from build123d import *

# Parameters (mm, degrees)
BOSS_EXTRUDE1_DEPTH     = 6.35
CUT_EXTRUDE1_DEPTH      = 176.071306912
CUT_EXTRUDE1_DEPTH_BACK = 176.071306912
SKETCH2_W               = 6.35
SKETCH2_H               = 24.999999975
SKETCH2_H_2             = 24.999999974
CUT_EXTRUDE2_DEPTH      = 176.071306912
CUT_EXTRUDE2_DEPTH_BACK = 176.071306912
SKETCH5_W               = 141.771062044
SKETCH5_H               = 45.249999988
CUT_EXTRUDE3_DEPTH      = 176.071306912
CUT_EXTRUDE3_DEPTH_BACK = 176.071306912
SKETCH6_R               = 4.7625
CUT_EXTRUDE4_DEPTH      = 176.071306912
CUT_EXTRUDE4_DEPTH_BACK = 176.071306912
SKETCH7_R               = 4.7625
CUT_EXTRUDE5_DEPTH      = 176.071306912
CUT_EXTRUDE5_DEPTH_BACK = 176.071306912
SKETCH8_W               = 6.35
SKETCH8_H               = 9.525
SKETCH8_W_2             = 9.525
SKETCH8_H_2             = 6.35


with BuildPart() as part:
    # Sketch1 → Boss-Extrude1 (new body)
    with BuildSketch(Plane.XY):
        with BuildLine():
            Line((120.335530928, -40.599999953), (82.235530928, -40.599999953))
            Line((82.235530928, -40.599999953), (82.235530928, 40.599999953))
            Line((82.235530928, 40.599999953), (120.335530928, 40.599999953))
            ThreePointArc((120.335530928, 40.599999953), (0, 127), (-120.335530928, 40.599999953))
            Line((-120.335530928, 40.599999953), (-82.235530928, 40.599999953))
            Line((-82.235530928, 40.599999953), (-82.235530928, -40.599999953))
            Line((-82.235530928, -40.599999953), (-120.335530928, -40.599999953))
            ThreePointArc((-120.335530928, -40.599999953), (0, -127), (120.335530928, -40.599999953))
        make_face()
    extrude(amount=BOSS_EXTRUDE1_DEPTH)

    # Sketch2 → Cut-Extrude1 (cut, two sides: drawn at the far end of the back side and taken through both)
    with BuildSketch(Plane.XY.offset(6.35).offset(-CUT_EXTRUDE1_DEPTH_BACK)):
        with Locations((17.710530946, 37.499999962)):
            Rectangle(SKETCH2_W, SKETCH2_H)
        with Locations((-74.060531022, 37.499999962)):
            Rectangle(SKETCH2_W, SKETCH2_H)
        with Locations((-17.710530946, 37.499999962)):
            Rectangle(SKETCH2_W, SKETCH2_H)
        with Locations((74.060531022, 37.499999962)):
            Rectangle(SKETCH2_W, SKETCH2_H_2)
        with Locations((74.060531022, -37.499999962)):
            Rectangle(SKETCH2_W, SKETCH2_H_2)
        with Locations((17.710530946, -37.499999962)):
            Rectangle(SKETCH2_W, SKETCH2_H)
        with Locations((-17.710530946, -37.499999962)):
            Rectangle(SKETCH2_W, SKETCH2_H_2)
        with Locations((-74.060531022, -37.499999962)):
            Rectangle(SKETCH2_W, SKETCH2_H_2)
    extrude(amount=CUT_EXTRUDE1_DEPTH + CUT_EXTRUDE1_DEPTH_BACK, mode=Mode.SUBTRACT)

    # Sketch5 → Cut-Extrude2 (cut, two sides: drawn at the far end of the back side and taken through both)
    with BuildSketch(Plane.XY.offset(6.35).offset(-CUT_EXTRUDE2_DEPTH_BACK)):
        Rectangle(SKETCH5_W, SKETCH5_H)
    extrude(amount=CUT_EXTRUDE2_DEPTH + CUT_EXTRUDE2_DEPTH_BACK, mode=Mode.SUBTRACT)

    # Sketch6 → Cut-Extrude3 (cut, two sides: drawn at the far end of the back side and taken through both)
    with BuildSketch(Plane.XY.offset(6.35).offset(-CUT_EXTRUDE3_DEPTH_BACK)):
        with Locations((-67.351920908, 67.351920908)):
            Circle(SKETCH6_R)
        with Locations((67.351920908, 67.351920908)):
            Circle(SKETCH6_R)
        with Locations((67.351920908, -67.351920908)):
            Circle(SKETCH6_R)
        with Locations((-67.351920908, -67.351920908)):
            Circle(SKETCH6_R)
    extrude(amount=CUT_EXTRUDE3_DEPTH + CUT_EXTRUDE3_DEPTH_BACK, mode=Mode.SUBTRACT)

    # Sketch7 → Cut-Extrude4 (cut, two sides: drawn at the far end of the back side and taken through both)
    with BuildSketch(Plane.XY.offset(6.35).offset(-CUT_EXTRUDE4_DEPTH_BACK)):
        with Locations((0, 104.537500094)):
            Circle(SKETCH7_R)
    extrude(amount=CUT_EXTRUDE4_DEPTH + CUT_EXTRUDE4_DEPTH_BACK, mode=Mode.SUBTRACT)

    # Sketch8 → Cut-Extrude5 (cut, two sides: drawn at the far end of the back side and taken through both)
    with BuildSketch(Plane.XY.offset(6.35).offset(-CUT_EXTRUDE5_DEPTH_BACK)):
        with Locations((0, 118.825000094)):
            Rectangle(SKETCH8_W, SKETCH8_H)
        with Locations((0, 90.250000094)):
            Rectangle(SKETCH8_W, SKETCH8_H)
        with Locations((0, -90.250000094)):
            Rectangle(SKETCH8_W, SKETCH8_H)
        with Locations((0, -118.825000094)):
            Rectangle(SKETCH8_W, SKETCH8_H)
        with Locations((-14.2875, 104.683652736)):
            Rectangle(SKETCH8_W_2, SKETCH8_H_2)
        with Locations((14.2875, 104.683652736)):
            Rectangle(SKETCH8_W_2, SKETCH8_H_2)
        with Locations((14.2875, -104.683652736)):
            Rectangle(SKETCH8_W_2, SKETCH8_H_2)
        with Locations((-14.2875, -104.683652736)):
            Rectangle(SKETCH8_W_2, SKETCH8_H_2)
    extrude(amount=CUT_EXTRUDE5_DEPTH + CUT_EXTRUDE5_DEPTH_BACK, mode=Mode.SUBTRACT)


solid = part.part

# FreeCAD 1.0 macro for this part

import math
import FreeCAD as App
import Part
import Sketcher
from FreeCAD import Vector
Q = App.Units.Quantity

doc = App.newDocument("Part")
body = doc.addObject("PartDesign::Body", "Body")

sketch1 = body.newObject("Sketcher::SketchObject", "Sketch")
sketch1.AttachmentSupport = (doc.getObject("XY_Plane"), [""])
sketch1.MapMode = "FlatFace"
sketch1.addGeometry([
    Part.LineSegment(Vector(120, -41, 0), Vector(82, -41, 0)),
    Part.LineSegment(Vector(82, -41, 0), Vector(82, 41, 0)),
    Part.LineSegment(Vector(82, 41, 0), Vector(120, 41, 0)),
    Part.ArcOfCircle(Part.Circle(Vector(0, 0, 0), Vector(0, 0, 1), 127), math.radians(19), math.radians(161)),
    Part.LineSegment(Vector(-120, 41, 0), Vector(-82, 41, 0)),
    Part.LineSegment(Vector(-82, 41, 0), Vector(-82, -41, 0)),
    Part.LineSegment(Vector(-82, -41, 0), Vector(-120, -41, 0)),
    Part.ArcOfCircle(Part.Circle(Vector(0, 0, 0), Vector(0, 0, 1), 127), math.radians(-161), math.radians(-19)),
], False)
sketch1.addConstraint([
    Sketcher.Constraint("Coincident", 0, 2, 1, 1),
    Sketcher.Constraint("Coincident", 1, 2, 2, 1),
    Sketcher.Constraint("Coincident", 2, 2, 3, 1),
    Sketcher.Constraint("Coincident", 3, 2, 4, 1),
    Sketcher.Constraint("Coincident", 4, 2, 5, 1),
    Sketcher.Constraint("Coincident", 5, 2, 6, 1),
    Sketcher.Constraint("Coincident", 6, 2, 7, 1),
    Sketcher.Constraint("Coincident", 7, 2, 0, 1),
    Sketcher.Constraint("Horizontal", 0),
    Sketcher.Constraint("Vertical", 1),
    Sketcher.Constraint("Horizontal", 2),
    Sketcher.Constraint("Horizontal", 4),
    Sketcher.Constraint("Vertical", 5),
    Sketcher.Constraint("Horizontal", 6),
    Sketcher.Constraint("Coincident", 3, 3, -1, 1),
    Sketcher.Constraint("Coincident", 7, 3, -1, 1),
    Sketcher.Constraint("Equal", 3, 7),
    Sketcher.Constraint("Symmetric", 0, 2, 4, 2, -1, 1),
    Sketcher.Constraint("Horizontal", 2, 2, 3, 2),
    Sketcher.Constraint("Horizontal", 0, 2, 5, 2),
    Sketcher.Constraint("Radius", 3, Q("5 in")),
    Sketcher.Constraint("DistanceX", 0, 2, 0, 1, Q("1.5 in")),
    Sketcher.Constraint("DistanceY", 1, 1, 1, 2, Q("81.2 mm")),
])
pad1 = body.newObject("PartDesign::Pad", "Pad")
pad1.Profile = sketch1
pad1.Length = Q("0.25 in")

sketch2 = body.newObject("Sketcher::SketchObject", "Sketch001")
sketch2.AttachmentSupport = (doc.getObject("XY_Plane"), [""])
sketch2.MapMode = "FlatFace"
sketch2.AttachmentOffset = App.Placement(Vector(0, 0, 0.25 * 25.4), App.Rotation())
sketch2.addGeometry([
    Part.LineSegment(Vector(15, 50, 0), Vector(15, 25, 0)),
    Part.LineSegment(Vector(15, 25, 0), Vector(21, 25, 0)),
    Part.LineSegment(Vector(21, 25, 0), Vector(21, 50, 0)),
    Part.LineSegment(Vector(21, 50, 0), Vector(15, 50, 0)),
    Part.LineSegment(Vector(-77, 50, 0), Vector(-77, 25, 0)),
    Part.LineSegment(Vector(-77, 25, 0), Vector(-71, 25, 0)),
    Part.LineSegment(Vector(-71, 25, 0), Vector(-71, 50, 0)),
    Part.LineSegment(Vector(-71, 50, 0), Vector(-77, 50, 0)),
    Part.LineSegment(Vector(-21, 50, 0), Vector(-21, 25, 0)),
    Part.LineSegment(Vector(-21, 25, 0), Vector(-15, 25, 0)),
    Part.LineSegment(Vector(-15, 25, 0), Vector(-15, 50, 0)),
    Part.LineSegment(Vector(-15, 50, 0), Vector(-21, 50, 0)),
    Part.LineSegment(Vector(71, 50, 0), Vector(71, 25, 0)),
    Part.LineSegment(Vector(71, 25, 0), Vector(77, 25, 0)),
    Part.LineSegment(Vector(77, 25, 0), Vector(77, 50, 0)),
    Part.LineSegment(Vector(77, 50, 0), Vector(71, 50, 0)),
    Part.LineSegment(Vector(71, -25, 0), Vector(71, -50, 0)),
    Part.LineSegment(Vector(71, -50, 0), Vector(77, -50, 0)),
    Part.LineSegment(Vector(77, -50, 0), Vector(77, -25, 0)),
    Part.LineSegment(Vector(77, -25, 0), Vector(71, -25, 0)),
    Part.LineSegment(Vector(15, -25, 0), Vector(15, -50, 0)),
    Part.LineSegment(Vector(15, -50, 0), Vector(21, -50, 0)),
    Part.LineSegment(Vector(21, -50, 0), Vector(21, -25, 0)),
    Part.LineSegment(Vector(21, -25, 0), Vector(15, -25, 0)),
    Part.LineSegment(Vector(-21, -25, 0), Vector(-21, -50, 0)),
    Part.LineSegment(Vector(-21, -50, 0), Vector(-15, -50, 0)),
    Part.LineSegment(Vector(-15, -50, 0), Vector(-15, -25, 0)),
    Part.LineSegment(Vector(-15, -25, 0), Vector(-21, -25, 0)),
    Part.LineSegment(Vector(-77, -25, 0), Vector(-77, -50, 0)),
    Part.LineSegment(Vector(-77, -50, 0), Vector(-71, -50, 0)),
    Part.LineSegment(Vector(-71, -50, 0), Vector(-71, -25, 0)),
    Part.LineSegment(Vector(-71, -25, 0), Vector(-77, -25, 0)),
], False)
sketch2.addConstraint([
    Sketcher.Constraint("Coincident", 0, 2, 1, 1),
    Sketcher.Constraint("Coincident", 1, 2, 2, 1),
    Sketcher.Constraint("Coincident", 2, 2, 3, 1),
    Sketcher.Constraint("Coincident", 3, 2, 0, 1),
    Sketcher.Constraint("Coincident", 4, 2, 5, 1),
    Sketcher.Constraint("Coincident", 5, 2, 6, 1),
    Sketcher.Constraint("Coincident", 6, 2, 7, 1),
    Sketcher.Constraint("Coincident", 7, 2, 4, 1),
    Sketcher.Constraint("Coincident", 8, 2, 9, 1),
    Sketcher.Constraint("Coincident", 9, 2, 10, 1),
    Sketcher.Constraint("Coincident", 10, 2, 11, 1),
    Sketcher.Constraint("Coincident", 11, 2, 8, 1),
    Sketcher.Constraint("Coincident", 12, 2, 13, 1),
    Sketcher.Constraint("Coincident", 13, 2, 14, 1),
    Sketcher.Constraint("Coincident", 14, 2, 15, 1),
    Sketcher.Constraint("Coincident", 15, 2, 12, 1),
    Sketcher.Constraint("Coincident", 16, 2, 17, 1),
    Sketcher.Constraint("Coincident", 17, 2, 18, 1),
    Sketcher.Constraint("Coincident", 18, 2, 19, 1),
    Sketcher.Constraint("Coincident", 19, 2, 16, 1),
    Sketcher.Constraint("Coincident", 20, 2, 21, 1),
    Sketcher.Constraint("Coincident", 21, 2, 22, 1),
    Sketcher.Constraint("Coincident", 22, 2, 23, 1),
    Sketcher.Constraint("Coincident", 23, 2, 20, 1),
    Sketcher.Constraint("Coincident", 24, 2, 25, 1),
    Sketcher.Constraint("Coincident", 25, 2, 26, 1),
    Sketcher.Constraint("Coincident", 26, 2, 27, 1),
    Sketcher.Constraint("Coincident", 27, 2, 24, 1),
    Sketcher.Constraint("Coincident", 28, 2, 29, 1),
    Sketcher.Constraint("Coincident", 29, 2, 30, 1),
    Sketcher.Constraint("Coincident", 30, 2, 31, 1),
    Sketcher.Constraint("Coincident", 31, 2, 28, 1),
    Sketcher.Constraint("Vertical", 0),
    Sketcher.Constraint("Horizontal", 1),
    Sketcher.Constraint("Vertical", 2),
    Sketcher.Constraint("Horizontal", 3),
    Sketcher.Constraint("Vertical", 4),
    Sketcher.Constraint("Horizontal", 5),
    Sketcher.Constraint("Vertical", 6),
    Sketcher.Constraint("Horizontal", 7),
    Sketcher.Constraint("Vertical", 8),
    Sketcher.Constraint("Horizontal", 9),
    Sketcher.Constraint("Vertical", 10),
    Sketcher.Constraint("Horizontal", 11),
    Sketcher.Constraint("Vertical", 12),
    Sketcher.Constraint("Horizontal", 13),
    Sketcher.Constraint("Vertical", 14),
    Sketcher.Constraint("Horizontal", 15),
    Sketcher.Constraint("Vertical", 16),
    Sketcher.Constraint("Horizontal", 17),
    Sketcher.Constraint("Vertical", 18),
    Sketcher.Constraint("Horizontal", 19),
    Sketcher.Constraint("Vertical", 20),
    Sketcher.Constraint("Horizontal", 21),
    Sketcher.Constraint("Vertical", 22),
    Sketcher.Constraint("Horizontal", 23),
    Sketcher.Constraint("Vertical", 24),
    Sketcher.Constraint("Horizontal", 25),
    Sketcher.Constraint("Vertical", 26),
    Sketcher.Constraint("Horizontal", 27),
    Sketcher.Constraint("Vertical", 28),
    Sketcher.Constraint("Horizontal", 29),
    Sketcher.Constraint("Vertical", 30),
    Sketcher.Constraint("Horizontal", 31),
    Sketcher.Constraint("Symmetric", 6, 2, 16, 2, -1, 1),
    Sketcher.Constraint("Symmetric", 4, 2, 18, 2, -1, 1),
    Sketcher.Constraint("Symmetric", 10, 2, 20, 2, -1, 1),
    Sketcher.Constraint("Symmetric", 8, 2, 22, 2, -1, 1),
    Sketcher.Constraint("Symmetric", 2, 2, 24, 2, -1, 1),
    Sketcher.Constraint("Symmetric", 0, 2, 26, 2, -1, 1),
    Sketcher.Constraint("Symmetric", 14, 2, 28, 2, -1, 1),
    Sketcher.Constraint("Symmetric", 12, 2, 30, 2, -1, 1),
    Sketcher.Constraint("Symmetric", 1, 2, 8, 2, -2),
    Sketcher.Constraint("Symmetric", 3, 2, 10, 2, -2),
    Sketcher.Constraint("Symmetric", 5, 2, 12, 2, -2),
    Sketcher.Constraint("Symmetric", 7, 2, 14, 2, -2),
    Sketcher.Constraint("Horizontal", 1, 2, 4, 2),
    Sketcher.Constraint("Horizontal", 3, 2, 6, 2),
    Sketcher.Constraint("Equal", 3, 5),
    Sketcher.Constraint("DistanceX", 1, 1, 1, 2, Q("0.25 in")),
    Sketcher.Constraint("DistanceY", 0, 2, 0, 1, Q("25 mm")),
    Sketcher.Constraint("DistanceY", -1, 1, 0, 2, Q("25 mm")),
    Sketcher.Constraint("DistanceX", 5, 2, 8, 2, Q("50 mm")),
    Sketcher.Constraint("DistanceX", -1, 1, 0, 2, Q("14.535531 mm")),
])
pocket1 = body.newObject("PartDesign::Pocket", "Pocket")
pocket1.Profile = sketch2
pocket1.Type = "ThroughAll"
pocket1.Midplane = True

sketch3 = body.newObject("Sketcher::SketchObject", "Sketch002")
sketch3.AttachmentSupport = (doc.getObject("XY_Plane"), [""])
sketch3.MapMode = "FlatFace"
sketch3.AttachmentOffset = App.Placement(Vector(0, 0, 0.25 * 25.4), App.Rotation())
sketch3.addGeometry([
    Part.LineSegment(Vector(-71, 23, 0), Vector(-71, -23, 0)),
    Part.LineSegment(Vector(-71, -23, 0), Vector(71, -23, 0)),
    Part.LineSegment(Vector(71, -23, 0), Vector(71, 23, 0)),
    Part.LineSegment(Vector(71, 23, 0), Vector(-71, 23, 0)),
], False)
sketch3.addConstraint([
    Sketcher.Constraint("Coincident", 0, 2, 1, 1),
    Sketcher.Constraint("Coincident", 1, 2, 2, 1),
    Sketcher.Constraint("Coincident", 2, 2, 3, 1),
    Sketcher.Constraint("Coincident", 3, 2, 0, 1),
    Sketcher.Constraint("Vertical", 0),
    Sketcher.Constraint("Horizontal", 1),
    Sketcher.Constraint("Vertical", 2),
    Sketcher.Constraint("Horizontal", 3),
    Sketcher.Constraint("Symmetric", 0, 2, 2, 2, -1, 1),
    Sketcher.Constraint("DistanceY", 0, 2, 0, 1, Q("45.25 mm")),
    Sketcher.Constraint("DistanceX", 1, 1, 1, 2, Q("141.771062 mm")),
])
pocket2 = body.newObject("PartDesign::Pocket", "Pocket001")
pocket2.Profile = sketch3
pocket2.Type = "ThroughAll"
pocket2.Midplane = True

sketch4 = body.newObject("Sketcher::SketchObject", "Sketch003")
sketch4.AttachmentSupport = (doc.getObject("XY_Plane"), [""])
sketch4.MapMode = "FlatFace"
sketch4.AttachmentOffset = App.Placement(Vector(0, 0, 0.25 * 25.4), App.Rotation())
sketch4.addGeometry([
    Part.Circle(Vector(-67.4, 67.4, 0), Vector(0, 0, 1), 4.8),
    Part.Circle(Vector(67.4, 67.4, 0), Vector(0, 0, 1), 4.8),
    Part.Circle(Vector(67.4, -67.4, 0), Vector(0, 0, 1), 4.8),
    Part.Circle(Vector(-67.4, -67.4, 0), Vector(0, 0, 1), 4.8),
], False)
sketch4.addConstraint([
    Sketcher.Constraint("Equal", 0, 1),
    Sketcher.Constraint("Equal", 1, 2),
    Sketcher.Constraint("Equal", 2, 3),
    Sketcher.Constraint("Symmetric", 0, 3, 2, 3, -1, 1),
    Sketcher.Constraint("Symmetric", 1, 3, 3, 3, -1, 1),
    Sketcher.Constraint("Symmetric", 0, 3, 1, 3, -2),
    Sketcher.Constraint("Diameter", 0, Q("0.375 in")),
    Sketcher.Constraint("DistanceX", 0, 3, -1, 1, Q("67.351921 mm")),
    Sketcher.Constraint("DistanceY", -1, 1, 0, 3, Q("67.351921 mm")),
])
pocket3 = body.newObject("PartDesign::Pocket", "Pocket002")
pocket3.Profile = sketch4
pocket3.Type = "ThroughAll"
pocket3.Midplane = True

sketch5 = body.newObject("Sketcher::SketchObject", "Sketch004")
sketch5.AttachmentSupport = (doc.getObject("XY_Plane"), [""])
sketch5.MapMode = "FlatFace"
sketch5.AttachmentOffset = App.Placement(Vector(0, 0, 0.25 * 25.4), App.Rotation())
sketch5.addGeometry(Part.Circle(Vector(0, 104.5, 0), Vector(0, 0, 1), 4.8), False)
sketch5.addConstraint([
    Sketcher.Constraint("PointOnObject", 0, 3, -2),
    Sketcher.Constraint("Diameter", 0, Q("0.375 in")),
    Sketcher.Constraint("DistanceY", -1, 1, 0, 3, Q("104.5375 mm")),
])
pocket4 = body.newObject("PartDesign::Pocket", "Pocket003")
pocket4.Profile = sketch5
pocket4.Type = "ThroughAll"
pocket4.Midplane = True

sketch6 = body.newObject("Sketcher::SketchObject", "Sketch005")
sketch6.AttachmentSupport = (doc.getObject("XY_Plane"), [""])
sketch6.MapMode = "FlatFace"
sketch6.AttachmentOffset = App.Placement(Vector(0, 0, 0.25 * 25.4), App.Rotation())
sketch6.addGeometry([
    Part.LineSegment(Vector(-3, 124, 0), Vector(-3, 114, 0)),
    Part.LineSegment(Vector(-3, 114, 0), Vector(3, 114, 0)),
    Part.LineSegment(Vector(3, 114, 0), Vector(3, 124, 0)),
    Part.LineSegment(Vector(3, 124, 0), Vector(-3, 124, 0)),
    Part.LineSegment(Vector(-3, 95, 0), Vector(-3, 85, 0)),
    Part.LineSegment(Vector(-3, 85, 0), Vector(3, 85, 0)),
    Part.LineSegment(Vector(3, 85, 0), Vector(3, 95, 0)),
    Part.LineSegment(Vector(3, 95, 0), Vector(-3, 95, 0)),
    Part.LineSegment(Vector(-3, -85, 0), Vector(-3, -95, 0)),
    Part.LineSegment(Vector(-3, -95, 0), Vector(3, -95, 0)),
    Part.LineSegment(Vector(3, -95, 0), Vector(3, -85, 0)),
    Part.LineSegment(Vector(3, -85, 0), Vector(-3, -85, 0)),
    Part.LineSegment(Vector(-3, -114, 0), Vector(-3, -124, 0)),
    Part.LineSegment(Vector(-3, -124, 0), Vector(3, -124, 0)),
    Part.LineSegment(Vector(3, -124, 0), Vector(3, -114, 0)),
    Part.LineSegment(Vector(3, -114, 0), Vector(-3, -114, 0)),
    Part.LineSegment(Vector(-19, 108, 0), Vector(-19, 102, 0)),
    Part.LineSegment(Vector(-19, 102, 0), Vector(-10, 102, 0)),
    Part.LineSegment(Vector(-10, 102, 0), Vector(-10, 108, 0)),
    Part.LineSegment(Vector(-10, 108, 0), Vector(-19, 108, 0)),
    Part.LineSegment(Vector(10, 108, 0), Vector(10, 102, 0)),
    Part.LineSegment(Vector(10, 102, 0), Vector(19, 102, 0)),
    Part.LineSegment(Vector(19, 102, 0), Vector(19, 108, 0)),
    Part.LineSegment(Vector(19, 108, 0), Vector(10, 108, 0)),
    Part.LineSegment(Vector(10, -102, 0), Vector(10, -108, 0)),
    Part.LineSegment(Vector(10, -108, 0), Vector(19, -108, 0)),
    Part.LineSegment(Vector(19, -108, 0), Vector(19, -102, 0)),
    Part.LineSegment(Vector(19, -102, 0), Vector(10, -102, 0)),
    Part.LineSegment(Vector(-19, -102, 0), Vector(-19, -108, 0)),
    Part.LineSegment(Vector(-19, -108, 0), Vector(-10, -108, 0)),
    Part.LineSegment(Vector(-10, -108, 0), Vector(-10, -102, 0)),
    Part.LineSegment(Vector(-10, -102, 0), Vector(-19, -102, 0)),
], False)
sketch6.addConstraint([
    Sketcher.Constraint("Coincident", 0, 2, 1, 1),
    Sketcher.Constraint("Coincident", 1, 2, 2, 1),
    Sketcher.Constraint("Coincident", 2, 2, 3, 1),
    Sketcher.Constraint("Coincident", 3, 2, 0, 1),
    Sketcher.Constraint("Coincident", 4, 2, 5, 1),
    Sketcher.Constraint("Coincident", 5, 2, 6, 1),
    Sketcher.Constraint("Coincident", 6, 2, 7, 1),
    Sketcher.Constraint("Coincident", 7, 2, 4, 1),
    Sketcher.Constraint("Coincident", 8, 2, 9, 1),
    Sketcher.Constraint("Coincident", 9, 2, 10, 1),
    Sketcher.Constraint("Coincident", 10, 2, 11, 1),
    Sketcher.Constraint("Coincident", 11, 2, 8, 1),
    Sketcher.Constraint("Coincident", 12, 2, 13, 1),
    Sketcher.Constraint("Coincident", 13, 2, 14, 1),
    Sketcher.Constraint("Coincident", 14, 2, 15, 1),
    Sketcher.Constraint("Coincident", 15, 2, 12, 1),
    Sketcher.Constraint("Coincident", 16, 2, 17, 1),
    Sketcher.Constraint("Coincident", 17, 2, 18, 1),
    Sketcher.Constraint("Coincident", 18, 2, 19, 1),
    Sketcher.Constraint("Coincident", 19, 2, 16, 1),
    Sketcher.Constraint("Coincident", 20, 2, 21, 1),
    Sketcher.Constraint("Coincident", 21, 2, 22, 1),
    Sketcher.Constraint("Coincident", 22, 2, 23, 1),
    Sketcher.Constraint("Coincident", 23, 2, 20, 1),
    Sketcher.Constraint("Coincident", 24, 2, 25, 1),
    Sketcher.Constraint("Coincident", 25, 2, 26, 1),
    Sketcher.Constraint("Coincident", 26, 2, 27, 1),
    Sketcher.Constraint("Coincident", 27, 2, 24, 1),
    Sketcher.Constraint("Coincident", 28, 2, 29, 1),
    Sketcher.Constraint("Coincident", 29, 2, 30, 1),
    Sketcher.Constraint("Coincident", 30, 2, 31, 1),
    Sketcher.Constraint("Coincident", 31, 2, 28, 1),
    Sketcher.Constraint("Vertical", 0),
    Sketcher.Constraint("Horizontal", 1),
    Sketcher.Constraint("Vertical", 2),
    Sketcher.Constraint("Horizontal", 3),
    Sketcher.Constraint("Vertical", 4),
    Sketcher.Constraint("Horizontal", 5),
    Sketcher.Constraint("Vertical", 6),
    Sketcher.Constraint("Horizontal", 7),
    Sketcher.Constraint("Vertical", 8),
    Sketcher.Constraint("Horizontal", 9),
    Sketcher.Constraint("Vertical", 10),
    Sketcher.Constraint("Horizontal", 11),
    Sketcher.Constraint("Vertical", 12),
    Sketcher.Constraint("Horizontal", 13),
    Sketcher.Constraint("Vertical", 14),
    Sketcher.Constraint("Horizontal", 15),
    Sketcher.Constraint("Vertical", 16),
    Sketcher.Constraint("Horizontal", 17),
    Sketcher.Constraint("Vertical", 18),
    Sketcher.Constraint("Horizontal", 19),
    Sketcher.Constraint("Vertical", 20),
    Sketcher.Constraint("Horizontal", 21),
    Sketcher.Constraint("Vertical", 22),
    Sketcher.Constraint("Horizontal", 23),
    Sketcher.Constraint("Vertical", 24),
    Sketcher.Constraint("Horizontal", 25),
    Sketcher.Constraint("Vertical", 26),
    Sketcher.Constraint("Horizontal", 27),
    Sketcher.Constraint("Vertical", 28),
    Sketcher.Constraint("Horizontal", 29),
    Sketcher.Constraint("Vertical", 30),
    Sketcher.Constraint("Horizontal", 31),
    Sketcher.Constraint("Symmetric", 6, 2, 8, 2, -1, 1),
    Sketcher.Constraint("Symmetric", 4, 2, 10, 2, -1, 1),
    Sketcher.Constraint("Symmetric", 2, 2, 12, 2, -1, 1),
    Sketcher.Constraint("Symmetric", 0, 2, 14, 2, -1, 1),
    Sketcher.Constraint("Symmetric", 18, 2, 24, 2, -1, 1),
    Sketcher.Constraint("Symmetric", 16, 2, 26, 2, -1, 1),
    Sketcher.Constraint("Symmetric", 22, 2, 28, 2, -1, 1),
    Sketcher.Constraint("Symmetric", 20, 2, 30, 2, -1, 1),
    Sketcher.Constraint("Symmetric", 17, 2, 20, 2, -2),
    Sketcher.Constraint("Symmetric", 19, 2, 22, 2, -2),
    Sketcher.Constraint("Vertical", 3, 2, 4, 2),
    Sketcher.Constraint("Vertical", 2, 2, 5, 2),
    Sketcher.Constraint("Vertical", 7, 2, 8, 2),
    Sketcher.Constraint("Equal", 31, 0),
    Sketcher.Constraint("Equal", 2, 4),
    Sketcher.Constraint("Equal", 15, 16),
    Sketcher.Constraint("DistanceX", 1, 1, 1, 2, Q("0.25 in")),
    Sketcher.Constraint("DistanceY", 4, 2, 3, 2, Q("1.5 in")),
    Sketcher.Constraint("DistanceX", 17, 2, 6, 2, Q("0.5 in")),
    Sketcher.Constraint("DistanceX", 17, 1, 17, 2, Q("0.375 in")),
    Sketcher.Constraint("DistanceY", -1, 1, 0, 2, Q("114.0625 mm")),
    Sketcher.Constraint("DistanceY", -1, 1, 16, 2, Q("101.508653 mm")),
])
pocket5 = body.newObject("PartDesign::Pocket", "Pocket004")
pocket5.Profile = sketch6
pocket5.Type = "ThroughAll"
pocket5.Midplane = True

doc.recompute()
